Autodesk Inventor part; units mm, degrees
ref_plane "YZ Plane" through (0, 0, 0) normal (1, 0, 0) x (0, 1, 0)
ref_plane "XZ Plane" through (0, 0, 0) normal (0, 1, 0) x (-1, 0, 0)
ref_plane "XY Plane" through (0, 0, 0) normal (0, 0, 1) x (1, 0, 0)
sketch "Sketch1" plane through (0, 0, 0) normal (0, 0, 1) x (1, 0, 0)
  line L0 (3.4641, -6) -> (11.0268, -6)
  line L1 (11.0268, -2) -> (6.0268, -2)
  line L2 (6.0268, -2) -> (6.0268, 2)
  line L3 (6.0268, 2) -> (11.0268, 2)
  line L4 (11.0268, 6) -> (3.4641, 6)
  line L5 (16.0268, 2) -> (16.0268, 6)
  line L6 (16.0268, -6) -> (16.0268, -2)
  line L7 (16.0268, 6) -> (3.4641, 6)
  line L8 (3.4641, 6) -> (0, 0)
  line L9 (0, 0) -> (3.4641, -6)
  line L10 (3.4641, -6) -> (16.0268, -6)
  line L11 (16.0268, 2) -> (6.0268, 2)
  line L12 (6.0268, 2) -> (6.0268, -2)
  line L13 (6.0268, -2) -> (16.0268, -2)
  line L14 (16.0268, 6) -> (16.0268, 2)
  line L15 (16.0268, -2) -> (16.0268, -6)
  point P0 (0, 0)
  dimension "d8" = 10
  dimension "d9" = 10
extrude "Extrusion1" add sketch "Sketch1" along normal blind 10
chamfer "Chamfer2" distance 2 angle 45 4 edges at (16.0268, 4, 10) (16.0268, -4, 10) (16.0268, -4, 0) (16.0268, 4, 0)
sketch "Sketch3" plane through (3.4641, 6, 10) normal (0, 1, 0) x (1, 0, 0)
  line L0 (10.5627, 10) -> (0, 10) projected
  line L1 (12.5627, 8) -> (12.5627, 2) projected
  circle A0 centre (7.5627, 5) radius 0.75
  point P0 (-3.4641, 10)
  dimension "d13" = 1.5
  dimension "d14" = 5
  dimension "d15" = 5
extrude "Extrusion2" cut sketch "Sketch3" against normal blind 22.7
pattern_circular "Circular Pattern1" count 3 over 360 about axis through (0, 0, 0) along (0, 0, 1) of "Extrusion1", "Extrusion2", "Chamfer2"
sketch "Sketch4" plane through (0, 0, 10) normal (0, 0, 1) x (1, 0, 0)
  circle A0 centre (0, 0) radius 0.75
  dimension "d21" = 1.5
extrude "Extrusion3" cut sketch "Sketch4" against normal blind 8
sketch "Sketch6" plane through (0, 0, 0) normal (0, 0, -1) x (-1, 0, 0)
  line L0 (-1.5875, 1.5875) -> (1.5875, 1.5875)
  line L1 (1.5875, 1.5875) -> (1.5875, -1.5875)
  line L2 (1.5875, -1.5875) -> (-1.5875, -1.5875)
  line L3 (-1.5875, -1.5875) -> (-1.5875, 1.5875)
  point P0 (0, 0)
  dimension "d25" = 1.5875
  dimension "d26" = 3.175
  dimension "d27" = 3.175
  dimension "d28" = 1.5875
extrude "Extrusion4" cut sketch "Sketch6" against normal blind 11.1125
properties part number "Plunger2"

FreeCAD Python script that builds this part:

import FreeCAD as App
import Part
import Sketcher
from FreeCAD import Vector
Q = App.Units.Quantity


def edges_at(feature, points):
    """Names of the edges that pass closest to the given points."""
    edges = feature.Shape.Edges
    near = lambda p: min(range(len(edges)), key=lambda i: edges[i].distToShape(Part.Vertex(*p))[0])
    return sorted({f"Edge{near(p) + 1}" for p in points})

doc = App.newDocument("Part")
body = doc.addObject("PartDesign::Body", "Body")

sketch1 = body.newObject("Sketcher::SketchObject", "Sketch")
sketch1.AttachmentSupport = (doc.getObject("XY_Plane"), [""])
sketch1.MapMode = "FlatFace"
sketch1.addGeometry([
    Part.LineSegment(Vector(0, 0, 0), Vector(3.4641, -6, 0)),
    Part.LineSegment(Vector(3.4641, -6, 0), Vector(16.0268, -6, 0)),
    Part.LineSegment(Vector(16.0268, -6, 0), Vector(16.0268, -2, 0)),
    Part.LineSegment(Vector(16.0268, -2, 0), Vector(6.0268, -2, 0)),
    Part.LineSegment(Vector(6.0268, -2, 0), Vector(6.0268, 2, 0)),
    Part.LineSegment(Vector(6.0268, 2, 0), Vector(16.0268, 2, 0)),
    Part.LineSegment(Vector(16.0268, 2, 0), Vector(16.0268, 6, 0)),
    Part.LineSegment(Vector(16.0268, 6, 0), Vector(3.4641, 6, 0)),
    Part.LineSegment(Vector(3.4641, 6, 0), Vector(0, 0, 0)),
], False)
sketch1.addConstraint([
    Sketcher.Constraint("Coincident", 0, 2, 1, 1),
    Sketcher.Constraint("Coincident", 1, 2, 2, 1),
    Sketcher.Constraint("Coincident", 2, 2, 3, 1),
    Sketcher.Constraint("Coincident", 3, 2, 4, 1),
    Sketcher.Constraint("Coincident", 4, 2, 5, 1),
    Sketcher.Constraint("Coincident", 5, 2, 6, 1),
    Sketcher.Constraint("Coincident", 6, 2, 7, 1),
    Sketcher.Constraint("Coincident", 7, 2, 8, 1),
    Sketcher.Constraint("Coincident", 8, 2, 0, 1),
    Sketcher.Constraint("Horizontal", 1),
    Sketcher.Constraint("Vertical", 2),
    Sketcher.Constraint("Horizontal", 3),
    Sketcher.Constraint("Vertical", 4),
    Sketcher.Constraint("Horizontal", 5),
    Sketcher.Constraint("Vertical", 6),
    Sketcher.Constraint("Horizontal", 7),
    Sketcher.Constraint("Coincident", 8, 2, -1, 1),
    Sketcher.Constraint("Symmetric", 2, 2, 5, 2, -1),
    Sketcher.Constraint("Symmetric", 0, 2, 7, 2, -1),
    Sketcher.Constraint("Equal", 2, 4),
    Sketcher.Constraint("DistanceX", 3, 2, 3, 1, Q("10 mm")),
    Sketcher.Constraint("DistanceY", 2, 1, 2, 2, Q("4 mm")),
    Sketcher.Constraint("Angle", 0, Q("-60 deg")),
    Sketcher.Constraint("DistanceX", 1, 1, 1, 2, Q("12.5627 mm")),
])
pad1 = body.newObject("PartDesign::Pad", "Pad")
pad1.Profile = sketch1
pad1.Length = 10
doc.recompute()

chamfer = body.newObject("PartDesign::Chamfer", "Chamfer")
chamfer.Base = (pad1, edges_at(pad1, [
    (16.027, 4, 10),
    (16.027, -4, 10),
    (16.027, -4, 0),
    (16.027, 4, 0),
]))
chamfer.Size = 2

sketch2 = body.newObject("Sketcher::SketchObject", "Sketch001")
sketch2.AttachmentSupport = (doc.getObject("XZ_Plane"), [""])
sketch2.MapMode = "FlatFace"
sketch2.AttachmentOffset = App.Placement(Vector(0, 0, -6), App.Rotation())
sketch2.addGeometry(Part.Circle(Vector(11.0268, 5, 0), Vector(0, 0, 1), 0.75), False)
sketch2.addConstraint([
    Sketcher.Constraint("Diameter", 0, Q("1.5 mm")),
    Sketcher.Constraint("DistanceY", -1, 1, 0, 3, Q("5 mm")),
    Sketcher.Constraint("DistanceX", -1, 1, 0, 3, Q("11.0268 mm")),
])
pocket1 = body.newObject("PartDesign::Pocket", "Pocket")
pocket1.Profile = sketch2
pocket1.Length = 22.7
pocket1.Reversed = True
doc.recompute()

polarpattern = body.newObject("PartDesign::PolarPattern", "PolarPattern")
polarpattern.Originals = [pad1, pocket1, chamfer]
polarpattern.Axis = (doc.getObject("Z_Axis"), [""])
polarpattern.Angle = 360
polarpattern.Occurrences = 3
body.Tip = polarpattern

sketch3 = body.newObject("Sketcher::SketchObject", "Sketch002")
sketch3.AttachmentSupport = (doc.getObject("XY_Plane"), [""])
sketch3.MapMode = "FlatFace"
sketch3.AttachmentOffset = App.Placement(Vector(0, 0, 10), App.Rotation())
sketch3.addGeometry(Part.Circle(Vector(0, 0, 0), Vector(0, 0, 1), 0.75), False)
sketch3.addConstraint([
    Sketcher.Constraint("Coincident", 0, 3, -1, 1),
    Sketcher.Constraint("Diameter", 0, Q("1.5 mm")),
])
pocket2 = body.newObject("PartDesign::Pocket", "Pocket001")
pocket2.Profile = sketch3
pocket2.Length = 8

sketch4 = body.newObject("Sketcher::SketchObject", "Sketch003")
sketch4.AttachmentSupport = (doc.getObject("XY_Plane"), [""])
sketch4.MapMode = "FlatFace"
sketch4.addGeometry([
    Part.LineSegment(Vector(-1.5875, 1.5875, 0), Vector(1.5875, 1.5875, 0)),
    Part.LineSegment(Vector(1.5875, 1.5875, 0), Vector(1.5875, -1.5875, 0)),
    Part.LineSegment(Vector(1.5875, -1.5875, 0), Vector(-1.5875, -1.5875, 0)),
    Part.LineSegment(Vector(-1.5875, -1.5875, 0), Vector(-1.5875, 1.5875, 0)),
], False)
sketch4.addConstraint([
    Sketcher.Constraint("Coincident", 0, 2, 1, 1),
    Sketcher.Constraint("Coincident", 1, 2, 2, 1),
    Sketcher.Constraint("Coincident", 2, 2, 3, 1),
    Sketcher.Constraint("Coincident", 3, 2, 0, 1),
    Sketcher.Constraint("Horizontal", 0),
    Sketcher.Constraint("Vertical", 1),
    Sketcher.Constraint("Horizontal", 2),
    Sketcher.Constraint("Vertical", 3),
    Sketcher.Constraint("Symmetric", 0, 2, 2, 2, -1, 1),
    Sketcher.Constraint("Equal", 2, 1),
    Sketcher.Constraint("DistanceX", 0, 1, 0, 2, Q("3.175 mm")),
])
pocket3 = body.newObject("PartDesign::Pocket", "Pocket002")
pocket3.Profile = sketch4
pocket3.Length = 11.1125
pocket3.Reversed = True

doc.recompute()
